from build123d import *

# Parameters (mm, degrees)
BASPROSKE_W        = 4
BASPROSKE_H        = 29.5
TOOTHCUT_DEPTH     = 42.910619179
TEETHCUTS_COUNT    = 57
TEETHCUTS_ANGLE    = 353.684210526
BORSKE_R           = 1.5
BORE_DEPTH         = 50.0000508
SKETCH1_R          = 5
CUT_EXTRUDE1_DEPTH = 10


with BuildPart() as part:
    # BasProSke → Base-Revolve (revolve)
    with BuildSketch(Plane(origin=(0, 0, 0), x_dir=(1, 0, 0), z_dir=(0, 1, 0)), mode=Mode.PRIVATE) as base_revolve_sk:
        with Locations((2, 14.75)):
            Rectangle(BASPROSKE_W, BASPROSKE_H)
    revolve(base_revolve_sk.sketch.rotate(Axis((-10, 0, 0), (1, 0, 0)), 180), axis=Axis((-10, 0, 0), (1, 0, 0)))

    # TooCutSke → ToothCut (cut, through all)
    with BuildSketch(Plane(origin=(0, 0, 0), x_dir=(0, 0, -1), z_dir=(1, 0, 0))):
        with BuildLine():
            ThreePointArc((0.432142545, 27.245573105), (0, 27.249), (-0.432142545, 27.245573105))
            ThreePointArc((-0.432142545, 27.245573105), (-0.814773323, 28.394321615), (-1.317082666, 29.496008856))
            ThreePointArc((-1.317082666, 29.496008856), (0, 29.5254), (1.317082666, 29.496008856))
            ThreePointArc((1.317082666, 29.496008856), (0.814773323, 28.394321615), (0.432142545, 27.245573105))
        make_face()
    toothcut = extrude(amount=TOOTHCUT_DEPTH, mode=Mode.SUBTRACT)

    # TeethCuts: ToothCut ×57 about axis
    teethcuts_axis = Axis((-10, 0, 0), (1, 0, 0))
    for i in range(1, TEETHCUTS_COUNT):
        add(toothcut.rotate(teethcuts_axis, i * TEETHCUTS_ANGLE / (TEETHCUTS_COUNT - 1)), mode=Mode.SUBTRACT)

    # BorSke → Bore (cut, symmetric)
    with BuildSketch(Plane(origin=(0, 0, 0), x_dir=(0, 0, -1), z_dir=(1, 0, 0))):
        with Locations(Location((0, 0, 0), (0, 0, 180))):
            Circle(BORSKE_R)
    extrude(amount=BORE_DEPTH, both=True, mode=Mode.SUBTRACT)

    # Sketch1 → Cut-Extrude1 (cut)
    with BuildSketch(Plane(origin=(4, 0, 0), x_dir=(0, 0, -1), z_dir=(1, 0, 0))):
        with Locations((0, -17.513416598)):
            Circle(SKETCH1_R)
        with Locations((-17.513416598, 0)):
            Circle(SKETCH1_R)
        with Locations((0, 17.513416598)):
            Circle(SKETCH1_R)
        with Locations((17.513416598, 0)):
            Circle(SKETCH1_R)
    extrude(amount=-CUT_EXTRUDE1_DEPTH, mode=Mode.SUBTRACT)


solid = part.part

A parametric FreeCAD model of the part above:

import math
import FreeCAD as App
import Part
import Sketcher

V = App.Vector


def add_polygon(sketch, points):
    """Adds a closed chain of lines whose ends are joined by coincident constraints."""
    first, n = sketch.GeometryCount, len(points)
    for a, b in zip(points, points[1:] + points[:1]):
        sketch.addGeometry(Part.LineSegment(App.Vector(*a, 0), App.Vector(*b, 0)), False)
    for i in range(n):
        sketch.addConstraint(Sketcher.Constraint("Coincident", first + i, 2, first + (i + 1) % n, 1))

doc = App.newDocument("Part")
body = doc.addObject("PartDesign::Body", "Body")

sketch1 = body.newObject("Sketcher::SketchObject", "Sketch")
sketch1.AttachmentSupport = (doc.getObject("XZ_Plane"), [""])
sketch1.MapMode = "FlatFace"
add_polygon(sketch1, [(0, -29.5), (0, 0), (4, 0), (4, -29.5)])
sketch1.addConstraint(Sketcher.Constraint("Vertical", 0))
sketch1.addConstraint(Sketcher.Constraint("Horizontal", 1))
sketch1.addConstraint(Sketcher.Constraint("Vertical", 2))
sketch1.addConstraint(Sketcher.Constraint("Horizontal", 3))
sketch1.addConstraint(Sketcher.Constraint("Coincident", 0, 2, -1, 1))
sketch1.addConstraint(Sketcher.Constraint("DistanceX", 1, 1, 1, 2, 4.0))
sketch1.addConstraint(Sketcher.Constraint("DistanceY", 0, 1, 0, 2, 29.5))
revolution = body.newObject("PartDesign::Revolution", "Revolution")
revolution.Profile = sketch1
revolution.ReferenceAxis = (sketch1, ["H_Axis"])
revolution.Angle = 360

sketch2 = body.newObject("Sketcher::SketchObject", "Sketch001")
sketch2.AttachmentSupport = (doc.getObject("YZ_Plane"), [""])
sketch2.MapMode = "FlatFace"
sketch2.addGeometry(Part.ArcOfCircle(Part.Circle(V(0, 0, 0), V(0, 0, 1), 27.2), math.radians(-0.91), math.radians(0.91)), False)
sketch2.addGeometry(Part.ArcOfCircle(Part.Circle(V(24.2, -11.4, 0), V(0, 0, 1), 11.4), math.radians(62.45), math.radians(74.62)), False)
sketch2.addGeometry(Part.ArcOfCircle(Part.Circle(V(0, 0, 0), V(0, 0, 1), 29.5), math.radians(-2.56), math.radians(2.56)), False)
sketch2.addGeometry(Part.ArcOfCircle(Part.Circle(V(24.2, 11.4, 0), V(0, 0, 1), 11.4), math.radians(-74.62), math.radians(-62.45)), False)
sketch2.addConstraint(Sketcher.Constraint("Coincident", 0, 1, 1, 2))
sketch2.addConstraint(Sketcher.Constraint("Coincident", 1, 1, 2, 1))
sketch2.addConstraint(Sketcher.Constraint("Coincident", 2, 2, 3, 2))
sketch2.addConstraint(Sketcher.Constraint("Coincident", 3, 1, 0, 2))
sketch2.addConstraint(Sketcher.Constraint("Coincident", 0, 3, -1, 1))
sketch2.addConstraint(Sketcher.Constraint("Coincident", 2, 3, -1, 1))
sketch2.addConstraint(Sketcher.Constraint("Equal", 1, 3))
sketch2.addConstraint(Sketcher.Constraint("Symmetric", 1, 3, 3, 3, -1))
sketch2.addConstraint(Sketcher.Constraint("Radius", 1, 11.4))
sketch2.addConstraint(Sketcher.Constraint("Radius", 0, 27.249))
sketch2.addConstraint(Sketcher.Constraint("Radius", 2, 29.5254))
sketch2.addConstraint(Sketcher.Constraint("DistanceY", 1, 3, -1, 1, 11.423992))
sketch2.addConstraint(Sketcher.Constraint("DistanceX", -1, 1, 2, 2, 29.496009))
pocket1 = body.newObject("PartDesign::Pocket", "Pocket")
pocket1.Profile = sketch2
pocket1.Type = "ThroughAll"
pocket1.Reversed = True
doc.recompute()

polarpattern = body.newObject("PartDesign::PolarPattern", "PolarPattern")
polarpattern.Originals = [pocket1]
polarpattern.Axis = (doc.getObject("X_Axis"), [""])
polarpattern.Angle = 360
polarpattern.Occurrences = 57
body.Tip = polarpattern

sketch3 = body.newObject("Sketcher::SketchObject", "Sketch002")
sketch3.AttachmentSupport = (doc.getObject("YZ_Plane"), [""])
sketch3.MapMode = "FlatFace"
sketch3.addGeometry(Part.Circle(V(0, 0, 0), V(0, 0, 1), 1.5), False)
sketch3.addConstraint(Sketcher.Constraint("Coincident", 0, 3, -1, 1))
sketch3.addConstraint(Sketcher.Constraint("Diameter", 0, 3.0))
pocket2 = body.newObject("PartDesign::Pocket", "Pocket001")
pocket2.Profile = sketch3
pocket2.Length = 100.000102
pocket2.Midplane = True

sketch4 = body.newObject("Sketcher::SketchObject", "Sketch003")
sketch4.AttachmentSupport = (doc.getObject("YZ_Plane"), [""])
sketch4.MapMode = "FlatFace"
sketch4.AttachmentOffset = App.Placement(V(0, 0, 4), App.Rotation())
sketch4.addGeometry(Part.Circle(V(-18, 0, 0), V(0, 0, 1), 5), False)
sketch4.addGeometry(Part.Circle(V(0, 18, 0), V(0, 0, 1), 5), False)
sketch4.addGeometry(Part.Circle(V(18, 0, 0), V(0, 0, 1), 5), False)
sketch4.addGeometry(Part.Circle(V(0, -18, 0), V(0, 0, 1), 5), False)
sketch4.addConstraint(Sketcher.Constraint("Equal", 0, 1))
sketch4.addConstraint(Sketcher.Constraint("Equal", 1, 2))
sketch4.addConstraint(Sketcher.Constraint("Equal", 2, 3))
sketch4.addConstraint(Sketcher.Constraint("Symmetric", 0, 3, 2, 3, -1, 1))
sketch4.addConstraint(Sketcher.Constraint("Symmetric", 1, 3, 3, 3, -1, 1))
sketch4.addConstraint(Sketcher.Constraint("PointOnObject", 0, 3, -1))
sketch4.addConstraint(Sketcher.Constraint("PointOnObject", 1, 3, -2))
sketch4.addConstraint(Sketcher.Constraint("Diameter", 0, 10.0))
sketch4.addConstraint(Sketcher.Constraint("DistanceX", 0, 3, -1, 1, 17.513417))
sketch4.addConstraint(Sketcher.Constraint("DistanceY", -1, 1, 1, 3, 17.513417))
pocket3 = body.newObject("PartDesign::Pocket", "Pocket002")
pocket3.Profile = sketch4
pocket3.Length = 10

doc.recompute()
